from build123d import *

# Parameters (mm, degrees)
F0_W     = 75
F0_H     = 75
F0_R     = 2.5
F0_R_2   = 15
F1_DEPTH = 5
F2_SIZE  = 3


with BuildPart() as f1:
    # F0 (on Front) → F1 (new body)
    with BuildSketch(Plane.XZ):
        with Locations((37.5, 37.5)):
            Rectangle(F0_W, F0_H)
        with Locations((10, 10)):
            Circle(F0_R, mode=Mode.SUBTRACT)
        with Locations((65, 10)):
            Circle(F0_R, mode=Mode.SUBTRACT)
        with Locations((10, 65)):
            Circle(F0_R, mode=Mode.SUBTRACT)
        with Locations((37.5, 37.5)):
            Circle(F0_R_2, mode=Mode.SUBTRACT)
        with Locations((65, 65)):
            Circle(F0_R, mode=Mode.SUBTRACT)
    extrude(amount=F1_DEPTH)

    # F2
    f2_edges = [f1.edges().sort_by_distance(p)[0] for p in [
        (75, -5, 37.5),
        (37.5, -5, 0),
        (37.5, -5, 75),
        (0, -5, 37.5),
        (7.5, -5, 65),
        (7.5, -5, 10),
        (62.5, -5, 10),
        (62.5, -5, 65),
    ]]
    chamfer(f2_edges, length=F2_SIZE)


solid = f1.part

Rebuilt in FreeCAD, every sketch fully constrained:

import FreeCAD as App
import Part
import Sketcher

V = App.Vector
Q = App.Units.Quantity


def edges_at(feature, points):
    """Names of the edges that pass closest to the given points."""
    edges = feature.Shape.Edges
    near = lambda p: min(range(len(edges)), key=lambda i: edges[i].distToShape(Part.Vertex(*p))[0])
    return sorted({f"Edge{near(p) + 1}" for p in points})


def add_polygon(sketch, points):
    """Adds a closed chain of lines whose ends are joined by coincident constraints."""
    first, n = sketch.GeometryCount, len(points)
    for a, b in zip(points, points[1:] + points[:1]):
        sketch.addGeometry(Part.LineSegment(App.Vector(*a, 0), App.Vector(*b, 0)), False)
    for i in range(n):
        sketch.addConstraint(Sketcher.Constraint("Coincident", first + i, 2, first + (i + 1) % n, 1))

doc = App.newDocument("Part")
body = doc.addObject("PartDesign::Body", "Body")

sketch1 = doc.addObject("Sketcher::SketchObject", "Sketch")
body.addObject(sketch1)
sketch1.AttachmentSupport = (doc.XZ_Plane, [""])
sketch1.MapMode = "FlatFace"
add_polygon(sketch1, [(0, 75), (0, 0), (75, 0), (75, 75)])
sketch1.addGeometry(Part.Circle(V(10, 10, 0), V(0, 0, 1), 2.5), False)
sketch1.addGeometry(Part.Circle(V(65, 10, 0), V(0, 0, 1), 2.5), False)
sketch1.addGeometry(Part.Circle(V(10, 65, 0), V(0, 0, 1), 2.5), False)
sketch1.addGeometry(Part.Circle(V(37.5, 37.5, 0), V(0, 0, 1), 15), False)
sketch1.addGeometry(Part.Circle(V(65, 65, 0), V(0, 0, 1), 2.5), False)
sketch1.addConstraint(Sketcher.Constraint("Vertical", 0))
sketch1.addConstraint(Sketcher.Constraint("Horizontal", 1))
sketch1.addConstraint(Sketcher.Constraint("Vertical", 2))
sketch1.addConstraint(Sketcher.Constraint("Horizontal", 3))
sketch1.addConstraint(Sketcher.Constraint("Coincident", 0, 2, -1, 1))
sketch1.addConstraint(Sketcher.Constraint("Equal", 4, 5))
sketch1.addConstraint(Sketcher.Constraint("Equal", 5, 6))
sketch1.addConstraint(Sketcher.Constraint("Equal", 6, 8))
sketch1.addConstraint(Sketcher.Constraint("Horizontal", 4, 3, 5, 3))
sketch1.addConstraint(Sketcher.Constraint("Horizontal", 6, 3, 8, 3))
sketch1.addConstraint(Sketcher.Constraint("Vertical", 4, 3, 6, 3))
sketch1.addConstraint(Sketcher.Constraint("Vertical", 5, 3, 8, 3))
sketch1.addConstraint(Sketcher.Constraint("Equal", 3, 0))
sketch1.addConstraint(Sketcher.Constraint("Diameter", 4, Q("5 mm")))
sketch1.addConstraint(Sketcher.Constraint("Diameter", 7, Q("30 mm")))
sketch1.addConstraint(Sketcher.Constraint("DistanceX", 1, 1, 1, 2, Q("75 mm")))
sketch1.addConstraint(Sketcher.Constraint("DistanceX", -1, 1, 4, 3, Q("10 mm")))
sketch1.addConstraint(Sketcher.Constraint("DistanceY", -1, 1, 4, 3, Q("10 mm")))
sketch1.addConstraint(Sketcher.Constraint("DistanceX", -1, 1, 5, 3, Q("65 mm")))
sketch1.addConstraint(Sketcher.Constraint("DistanceY", -1, 1, 6, 3, Q("65 mm")))
sketch1.addConstraint(Sketcher.Constraint("DistanceX", -1, 1, 7, 3, Q("37.5 mm")))
sketch1.addConstraint(Sketcher.Constraint("DistanceY", -1, 1, 7, 3, Q("37.5 mm")))
pad1 = doc.addObject("PartDesign::Pad", "Pad")
body.addObject(pad1)
pad1.Profile = sketch1
pad1.Length = 5
doc.recompute()

chamfer = doc.addObject("PartDesign::Chamfer", "Chamfer")
body.addObject(chamfer)
chamfer.Base = (pad1, edges_at(pad1, [
    (75, -5, 37.5),
    (37.5, -5, 0),
    (37.5, -5, 75),
    (0, -5, 37.5),
    (7.5, -5, 65),
    (7.5, -5, 10),
    (62.5, -5, 10),
    (62.5, -5, 65),
]))
chamfer.Size = 3

doc.recompute()
